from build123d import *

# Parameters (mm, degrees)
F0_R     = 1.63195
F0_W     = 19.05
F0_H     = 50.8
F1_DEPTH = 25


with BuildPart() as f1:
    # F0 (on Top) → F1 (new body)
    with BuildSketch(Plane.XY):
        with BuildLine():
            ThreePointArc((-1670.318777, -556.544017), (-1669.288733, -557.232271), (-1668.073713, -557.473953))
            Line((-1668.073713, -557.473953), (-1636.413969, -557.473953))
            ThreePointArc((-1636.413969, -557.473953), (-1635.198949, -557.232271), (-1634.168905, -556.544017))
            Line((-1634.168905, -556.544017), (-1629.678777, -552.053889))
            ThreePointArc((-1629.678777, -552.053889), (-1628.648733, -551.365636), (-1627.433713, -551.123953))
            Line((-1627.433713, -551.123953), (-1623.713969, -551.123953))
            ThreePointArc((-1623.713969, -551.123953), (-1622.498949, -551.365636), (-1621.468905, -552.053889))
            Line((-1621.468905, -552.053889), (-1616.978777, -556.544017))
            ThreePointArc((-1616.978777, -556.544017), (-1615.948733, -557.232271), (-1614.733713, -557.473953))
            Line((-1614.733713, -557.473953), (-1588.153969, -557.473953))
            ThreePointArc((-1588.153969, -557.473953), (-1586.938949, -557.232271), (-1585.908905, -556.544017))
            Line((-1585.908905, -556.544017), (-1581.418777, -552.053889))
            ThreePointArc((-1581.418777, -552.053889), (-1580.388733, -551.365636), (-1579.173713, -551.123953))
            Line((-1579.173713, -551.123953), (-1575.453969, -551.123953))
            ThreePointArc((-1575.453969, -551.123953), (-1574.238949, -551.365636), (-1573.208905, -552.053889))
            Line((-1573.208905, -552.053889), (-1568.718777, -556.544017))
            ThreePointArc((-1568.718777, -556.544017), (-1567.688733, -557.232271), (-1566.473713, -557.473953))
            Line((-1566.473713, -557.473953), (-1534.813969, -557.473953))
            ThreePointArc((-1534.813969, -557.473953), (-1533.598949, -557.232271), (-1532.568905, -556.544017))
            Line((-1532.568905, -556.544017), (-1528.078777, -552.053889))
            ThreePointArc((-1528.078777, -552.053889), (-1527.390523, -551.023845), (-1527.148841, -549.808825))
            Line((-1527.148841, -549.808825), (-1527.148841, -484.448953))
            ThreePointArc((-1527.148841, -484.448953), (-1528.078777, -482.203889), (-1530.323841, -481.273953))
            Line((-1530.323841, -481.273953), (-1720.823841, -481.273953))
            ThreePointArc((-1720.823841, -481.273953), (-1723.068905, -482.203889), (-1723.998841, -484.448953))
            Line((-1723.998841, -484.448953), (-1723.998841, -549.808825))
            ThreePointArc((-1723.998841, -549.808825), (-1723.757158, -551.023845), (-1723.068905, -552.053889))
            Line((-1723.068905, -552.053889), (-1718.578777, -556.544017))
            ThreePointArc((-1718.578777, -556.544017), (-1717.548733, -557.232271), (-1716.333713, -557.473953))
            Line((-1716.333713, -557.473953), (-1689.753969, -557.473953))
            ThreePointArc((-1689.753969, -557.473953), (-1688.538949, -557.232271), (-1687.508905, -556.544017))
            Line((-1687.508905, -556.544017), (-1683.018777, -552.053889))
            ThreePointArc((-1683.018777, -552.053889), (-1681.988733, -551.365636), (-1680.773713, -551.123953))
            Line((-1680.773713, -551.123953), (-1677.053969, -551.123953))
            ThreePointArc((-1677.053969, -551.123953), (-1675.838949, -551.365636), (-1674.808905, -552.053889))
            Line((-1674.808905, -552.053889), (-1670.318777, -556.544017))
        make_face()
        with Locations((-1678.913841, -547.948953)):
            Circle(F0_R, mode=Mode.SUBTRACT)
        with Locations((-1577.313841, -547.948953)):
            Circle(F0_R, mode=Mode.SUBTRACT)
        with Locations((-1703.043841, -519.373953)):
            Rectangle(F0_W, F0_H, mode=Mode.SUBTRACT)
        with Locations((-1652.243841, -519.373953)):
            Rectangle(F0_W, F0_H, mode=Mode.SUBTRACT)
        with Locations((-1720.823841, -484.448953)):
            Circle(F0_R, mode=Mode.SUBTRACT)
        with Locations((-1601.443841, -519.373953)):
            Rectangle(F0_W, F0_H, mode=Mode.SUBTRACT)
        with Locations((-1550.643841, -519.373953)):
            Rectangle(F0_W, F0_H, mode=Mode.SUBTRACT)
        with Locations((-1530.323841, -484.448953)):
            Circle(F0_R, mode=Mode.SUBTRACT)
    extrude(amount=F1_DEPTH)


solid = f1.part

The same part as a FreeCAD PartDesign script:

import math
import FreeCAD as App
import Part
import Sketcher
from FreeCAD import Vector
Q = App.Units.Quantity


def add_polygon(sketch, points):
    """Adds a closed chain of lines whose ends are joined by coincident constraints."""
    first, n = sketch.GeometryCount, len(points)
    for a, b in zip(points, points[1:] + points[:1]):
        sketch.addGeometry(Part.LineSegment(App.Vector(*a, 0), App.Vector(*b, 0)), False)
    for i in range(n):
        sketch.addConstraint(Sketcher.Constraint("Coincident", first + i, 2, first + (i + 1) % n, 1))

doc = App.newDocument("Part")
body = doc.addObject("PartDesign::Body", "Body")

# Sketch on XY plane
sketch1 = body.newObject("Sketcher::SketchObject", "Sketch")
sketch1.AttachmentSupport = (doc.getObject("XY_Plane"), [""])
sketch1.MapMode = "FlatFace"
sketch1.addGeometry(Part.ArcOfCircle(Part.Circle(Vector(-1668.073716, -554.298959, 0), Vector(0, 0, 1), 3.174994), math.radians(-135.000047), math.radians(-89.999955)), False)  # 0
sketch1.addGeometry(Part.LineSegment(Vector(-1668.073713, -557.473953, 0), Vector(-1636.413969, -557.473953, 0)), False)  # 1
sketch1.addGeometry(Part.ArcOfCircle(Part.Circle(Vector(-1636.413966, -554.298959, 0), Vector(0, 0, 1), 3.174994), math.radians(-90.000045), math.radians(-44.999953)), False)  # 2
sketch1.addGeometry(Part.LineSegment(Vector(-1634.168905, -556.544017, 0), Vector(-1629.678777, -552.053889, 0)), False)  # 3
sketch1.addGeometry(Part.ArcOfCircle(Part.Circle(Vector(-1627.433711, -554.298958, 0), Vector(0, 0, 1), 3.175005), math.radians(90.000039), math.radians(134.999963)), False)  # 4
sketch1.addGeometry(Part.LineSegment(Vector(-1627.433713, -551.123953, 0), Vector(-1623.713969, -551.123953, 0)), False)  # 5
sketch1.addGeometry(Part.ArcOfCircle(Part.Circle(Vector(-1623.713971, -554.298958, 0), Vector(0, 0, 1), 3.175005), math.radians(45.000037), math.radians(89.999961)), False)  # 6
sketch1.addGeometry(Part.LineSegment(Vector(-1621.468905, -552.053889, 0), Vector(-1616.978777, -556.544017, 0)), False)  # 7
sketch1.addGeometry(Part.ArcOfCircle(Part.Circle(Vector(-1614.733716, -554.298959, 0), Vector(0, 0, 1), 3.174994), math.radians(-135.000047), math.radians(-89.999955)), False)  # 8
sketch1.addGeometry(Part.LineSegment(Vector(-1614.733713, -557.473953, 0), Vector(-1588.153969, -557.473953, 0)), False)  # 9
sketch1.addGeometry(Part.ArcOfCircle(Part.Circle(Vector(-1588.153966, -554.298959, 0), Vector(0, 0, 1), 3.174994), math.radians(-90.000045), math.radians(-44.999953)), False)  # 10
sketch1.addGeometry(Part.LineSegment(Vector(-1585.908905, -556.544017, 0), Vector(-1581.418777, -552.053889, 0)), False)  # 11
sketch1.addGeometry(Part.ArcOfCircle(Part.Circle(Vector(-1579.173711, -554.298958, 0), Vector(0, 0, 1), 3.175005), math.radians(90.000039), math.radians(134.999963)), False)  # 12
sketch1.addGeometry(Part.LineSegment(Vector(-1579.173713, -551.123953, 0), Vector(-1575.453969, -551.123953, 0)), False)  # 13
sketch1.addGeometry(Part.ArcOfCircle(Part.Circle(Vector(-1575.453971, -554.298958, 0), Vector(0, 0, 1), 3.175005), math.radians(45.000037), math.radians(89.999961)), False)  # 14
sketch1.addGeometry(Part.LineSegment(Vector(-1573.208905, -552.053889, 0), Vector(-1568.718777, -556.544017, 0)), False)  # 15
sketch1.addGeometry(Part.ArcOfCircle(Part.Circle(Vector(-1566.473716, -554.298959, 0), Vector(0, 0, 1), 3.174994), math.radians(-135.000047), math.radians(-89.999955)), False)  # 16
sketch1.addGeometry(Part.LineSegment(Vector(-1566.473713, -557.473953, 0), Vector(-1534.813969, -557.473953, 0)), False)  # 17
sketch1.addGeometry(Part.ArcOfCircle(Part.Circle(Vector(-1534.813966, -554.298959, 0), Vector(0, 0, 1), 3.174994), math.radians(-90.000045), math.radians(-44.999953)), False)  # 18
sketch1.addGeometry(Part.LineSegment(Vector(-1532.568905, -556.544017, 0), Vector(-1528.078777, -552.053889, 0)), False)  # 19
sketch1.addGeometry(Part.ArcOfCircle(Part.Circle(Vector(-1530.323835, -549.808828, 0), Vector(0, 0, 1), 3.174994), math.radians(-45.000047), math.radians(0.000045)), False)  # 20
sketch1.addGeometry(Part.LineSegment(Vector(-1527.148841, -549.808825, 0), Vector(-1527.148841, -484.448953, 0)), False)  # 21
sketch1.addGeometry(Part.ArcOfCircle(Part.Circle(Vector(-1530.323841, -484.448953, 0), Vector(0, 0, 1), 3.175), math.radians(0.000002), math.radians(89.999998)), False)  # 22
sketch1.addGeometry(Part.LineSegment(Vector(-1530.323841, -481.273953, 0), Vector(-1720.823841, -481.273953, 0)), False)  # 23
sketch1.addGeometry(Part.ArcOfCircle(Part.Circle(Vector(-1720.823841, -484.448953, 0), Vector(0, 0, 1), 3.175), math.radians(90.000002), math.radians(179.999998)), False)  # 24
sketch1.addGeometry(Part.LineSegment(Vector(-1723.998841, -484.448953, 0), Vector(-1723.998841, -549.808825, 0)), False)  # 25
sketch1.addGeometry(Part.ArcOfCircle(Part.Circle(Vector(-1720.823836, -549.808823, 0), Vector(0, 0, 1), 3.175005), math.radians(-179.999961), math.radians(-135.000037)), False)  # 26
sketch1.addGeometry(Part.LineSegment(Vector(-1723.068905, -552.053889, 0), Vector(-1718.578777, -556.544017, 0)), False)  # 27
sketch1.addGeometry(Part.ArcOfCircle(Part.Circle(Vector(-1716.333716, -554.298959, 0), Vector(0, 0, 1), 3.174994), math.radians(-135.000047), math.radians(-89.999955)), False)  # 28
sketch1.addGeometry(Part.LineSegment(Vector(-1716.333713, -557.473953, 0), Vector(-1689.753969, -557.473953, 0)), False)  # 29
sketch1.addGeometry(Part.ArcOfCircle(Part.Circle(Vector(-1689.753966, -554.298959, 0), Vector(0, 0, 1), 3.174994), math.radians(-90.000045), math.radians(-44.999953)), False)  # 30
sketch1.addGeometry(Part.LineSegment(Vector(-1687.508905, -556.544017, 0), Vector(-1683.018777, -552.053889, 0)), False)  # 31
sketch1.addGeometry(Part.ArcOfCircle(Part.Circle(Vector(-1680.773711, -554.298958, 0), Vector(0, 0, 1), 3.175005), math.radians(90.000039), math.radians(134.999963)), False)  # 32
sketch1.addGeometry(Part.LineSegment(Vector(-1680.773713, -551.123953, 0), Vector(-1677.053969, -551.123953, 0)), False)  # 33
sketch1.addGeometry(Part.ArcOfCircle(Part.Circle(Vector(-1677.053971, -554.298958, 0), Vector(0, 0, 1), 3.175005), math.radians(45.000037), math.radians(89.999961)), False)  # 34
sketch1.addGeometry(Part.LineSegment(Vector(-1674.808905, -552.053889, 0), Vector(-1670.318777, -556.544017, 0)), False)  # 35
sketch1.addGeometry(Part.Circle(Vector(-1678.913841, -547.948953, 0), Vector(0, 0, 1), 1.63195), False)  # 36
add_polygon(sketch1, [(-1693.518841, -544.773953), (-1712.568841, -544.773953), (-1712.568841, -493.973953), (-1693.518841, -493.973953)])  # lines 37-40
add_polygon(sketch1, [(-1642.718841, -544.773953), (-1661.768841, -544.773953), (-1661.768841, -493.973953), (-1642.718841, -493.973953)])  # lines 41-44
sketch1.addGeometry(Part.Circle(Vector(-1577.313841, -547.948953, 0), Vector(0, 0, 1), 1.63195), False)  # 45
add_polygon(sketch1, [(-1591.918841, -544.773953), (-1610.968841, -544.773953), (-1610.968841, -493.973953), (-1591.918841, -493.973953)])  # lines 46-49
add_polygon(sketch1, [(-1541.118841, -544.773953), (-1560.168841, -544.773953), (-1560.168841, -493.973953), (-1541.118841, -493.973953)])  # lines 50-53
sketch1.addGeometry(Part.Circle(Vector(-1720.823841, -484.448953, 0), Vector(0, 0, 1), 1.63195), False)  # 54
sketch1.addGeometry(Part.Circle(Vector(-1530.323841, -484.448953, 0), Vector(0, 0, 1), 1.63195), False)  # 55
sketch1.addConstraint(Sketcher.Constraint("Tangent", 0, 2, 1, 1))
sketch1.addConstraint(Sketcher.Constraint("Tangent", 1, 2, 2, 1))
sketch1.addConstraint(Sketcher.Constraint("Tangent", 2, 2, 3, 1))
sketch1.addConstraint(Sketcher.Constraint("Tangent", 3, 2, 4, 2))
sketch1.addConstraint(Sketcher.Constraint("Tangent", 4, 1, 5, 1))
sketch1.addConstraint(Sketcher.Constraint("Tangent", 5, 2, 6, 2))
sketch1.addConstraint(Sketcher.Constraint("Tangent", 6, 1, 7, 1))
sketch1.addConstraint(Sketcher.Constraint("Tangent", 7, 2, 8, 1))
sketch1.addConstraint(Sketcher.Constraint("Tangent", 8, 2, 9, 1))
sketch1.addConstraint(Sketcher.Constraint("Tangent", 9, 2, 10, 1))
sketch1.addConstraint(Sketcher.Constraint("Tangent", 10, 2, 11, 1))
sketch1.addConstraint(Sketcher.Constraint("Tangent", 11, 2, 12, 2))
sketch1.addConstraint(Sketcher.Constraint("Tangent", 12, 1, 13, 1))
sketch1.addConstraint(Sketcher.Constraint("Tangent", 13, 2, 14, 2))
sketch1.addConstraint(Sketcher.Constraint("Tangent", 14, 1, 15, 1))
sketch1.addConstraint(Sketcher.Constraint("Tangent", 15, 2, 16, 1))
sketch1.addConstraint(Sketcher.Constraint("Tangent", 16, 2, 17, 1))
sketch1.addConstraint(Sketcher.Constraint("Tangent", 17, 2, 18, 1))
sketch1.addConstraint(Sketcher.Constraint("Tangent", 18, 2, 19, 1))
sketch1.addConstraint(Sketcher.Constraint("Tangent", 19, 2, 20, 1))
sketch1.addConstraint(Sketcher.Constraint("Tangent", 20, 2, 21, 1))
sketch1.addConstraint(Sketcher.Constraint("Tangent", 21, 2, 22, 1))
sketch1.addConstraint(Sketcher.Constraint("Tangent", 22, 2, 23, 1))
sketch1.addConstraint(Sketcher.Constraint("Tangent", 23, 2, 24, 1))
sketch1.addConstraint(Sketcher.Constraint("Tangent", 24, 2, 25, 1))
sketch1.addConstraint(Sketcher.Constraint("Tangent", 25, 2, 26, 1))
sketch1.addConstraint(Sketcher.Constraint("Tangent", 26, 2, 27, 1))
sketch1.addConstraint(Sketcher.Constraint("Tangent", 27, 2, 28, 1))
sketch1.addConstraint(Sketcher.Constraint("Tangent", 28, 2, 29, 1))
sketch1.addConstraint(Sketcher.Constraint("Tangent", 29, 2, 30, 1))
sketch1.addConstraint(Sketcher.Constraint("Tangent", 30, 2, 31, 1))
sketch1.addConstraint(Sketcher.Constraint("Tangent", 31, 2, 32, 2))
sketch1.addConstraint(Sketcher.Constraint("Tangent", 32, 1, 33, 1))
sketch1.addConstraint(Sketcher.Constraint("Tangent", 33, 2, 34, 2))
sketch1.addConstraint(Sketcher.Constraint("Tangent", 34, 1, 35, 1))
sketch1.addConstraint(Sketcher.Constraint("Tangent", 35, 2, 0, 1))
sketch1.addConstraint(Sketcher.Constraint("Horizontal", 1))
sketch1.addConstraint(Sketcher.Constraint("Horizontal", 5))
sketch1.addConstraint(Sketcher.Constraint("Horizontal", 9))
sketch1.addConstraint(Sketcher.Constraint("Horizontal", 13))
sketch1.addConstraint(Sketcher.Constraint("Horizontal", 17))
sketch1.addConstraint(Sketcher.Constraint("Vertical", 21))
sketch1.addConstraint(Sketcher.Constraint("Horizontal", 23))
sketch1.addConstraint(Sketcher.Constraint("Vertical", 25))
sketch1.addConstraint(Sketcher.Constraint("Horizontal", 29))
sketch1.addConstraint(Sketcher.Constraint("Horizontal", 33))
sketch1.addConstraint(Sketcher.Constraint("Horizontal", 37))
sketch1.addConstraint(Sketcher.Constraint("Vertical", 38))
sketch1.addConstraint(Sketcher.Constraint("Horizontal", 39))
sketch1.addConstraint(Sketcher.Constraint("Vertical", 40))
sketch1.addConstraint(Sketcher.Constraint("Horizontal", 41))
sketch1.addConstraint(Sketcher.Constraint("Vertical", 42))
sketch1.addConstraint(Sketcher.Constraint("Horizontal", 43))
sketch1.addConstraint(Sketcher.Constraint("Vertical", 44))
sketch1.addConstraint(Sketcher.Constraint("Horizontal", 46))
sketch1.addConstraint(Sketcher.Constraint("Vertical", 47))
sketch1.addConstraint(Sketcher.Constraint("Horizontal", 48))
sketch1.addConstraint(Sketcher.Constraint("Vertical", 49))
sketch1.addConstraint(Sketcher.Constraint("Horizontal", 50))
sketch1.addConstraint(Sketcher.Constraint("Vertical", 51))
sketch1.addConstraint(Sketcher.Constraint("Horizontal", 52))
sketch1.addConstraint(Sketcher.Constraint("Vertical", 53))
sketch1.addConstraint(Sketcher.Constraint("Coincident", 54, 3, 24, 3))
sketch1.addConstraint(Sketcher.Constraint("Coincident", 55, 3, 22, 3))
sketch1.addConstraint(Sketcher.Constraint("Equal", 0, 2))
sketch1.addConstraint(Sketcher.Constraint("Equal", 4, 6))
sketch1.addConstraint(Sketcher.Constraint("Equal", 2, 8))
sketch1.addConstraint(Sketcher.Constraint("Equal", 8, 10))
sketch1.addConstraint(Sketcher.Constraint("Equal", 6, 12))
sketch1.addConstraint(Sketcher.Constraint("Equal", 12, 14))
sketch1.addConstraint(Sketcher.Constraint("Equal", 10, 16))
sketch1.addConstraint(Sketcher.Constraint("Equal", 16, 18))
sketch1.addConstraint(Sketcher.Constraint("Equal", 18, 20))
sketch1.addConstraint(Sketcher.Constraint("Equal", 22, 24))
sketch1.addConstraint(Sketcher.Constraint("Equal", 14, 26))
sketch1.addConstraint(Sketcher.Constraint("Equal", 20, 28))
sketch1.addConstraint(Sketcher.Constraint("Equal", 28, 30))
sketch1.addConstraint(Sketcher.Constraint("Equal", 26, 32))
sketch1.addConstraint(Sketcher.Constraint("Equal", 32, 34))
sketch1.addConstraint(Sketcher.Constraint("Equal", 36, 45))
sketch1.addConstraint(Sketcher.Constraint("Equal", 45, 54))
sketch1.addConstraint(Sketcher.Constraint("Equal", 54, 55))
sketch1.addConstraint(Sketcher.Constraint("Perpendicular", 3, 7))
sketch1.addConstraint(Sketcher.Constraint("Perpendicular", 7, 11))
sketch1.addConstraint(Sketcher.Constraint("Perpendicular", 11, 15))
sketch1.addConstraint(Sketcher.Constraint("Perpendicular", 15, 19))
sketch1.addConstraint(Sketcher.Constraint("Perpendicular", 19, 27))
sketch1.addConstraint(Sketcher.Constraint("Perpendicular", 27, 31))
sketch1.addConstraint(Sketcher.Constraint("Perpendicular", 31, 35))
sketch1.addConstraint(Sketcher.Constraint("Horizontal", 2, 3, 4, 3))
sketch1.addConstraint(Sketcher.Constraint("Horizontal", 6, 3, 8, 3))
sketch1.addConstraint(Sketcher.Constraint("Horizontal", 10, 3, 12, 3))
sketch1.addConstraint(Sketcher.Constraint("Horizontal", 14, 3, 16, 3))
sketch1.addConstraint(Sketcher.Constraint("Horizontal", 18, 3, 28, 3))
sketch1.addConstraint(Sketcher.Constraint("Horizontal", 30, 3, 32, 3))
sketch1.addConstraint(Sketcher.Constraint("Horizontal", 36, 3, 45, 3))
sketch1.addConstraint(Sketcher.Constraint("Horizontal", 3, 2, 6, 1))
sketch1.addConstraint(Sketcher.Constraint("Horizontal", 14, 1, 19, 2))
sketch1.addConstraint(Sketcher.Constraint("Horizontal", 20, 2, 25, 2))
sketch1.addConstraint(Sketcher.Constraint("Horizontal", 19, 2, 26, 2))
sketch1.addConstraint(Sketcher.Constraint("Horizontal", 40, 2, 41, 2))
sketch1.addConstraint(Sketcher.Constraint("Horizontal", 39, 2, 42, 2))
sketch1.addConstraint(Sketcher.Constraint("Horizontal", 44, 2, 46, 2))
sketch1.addConstraint(Sketcher.Constraint("Horizontal", 43, 2, 47, 2))
sketch1.addConstraint(Sketcher.Constraint("Horizontal", 49, 2, 50, 2))
sketch1.addConstraint(Sketcher.Constraint("Horizontal", 48, 2, 51, 2))
sketch1.addConstraint(Sketcher.Constraint("Equal", 5, 13))
sketch1.addConstraint(Sketcher.Constraint("Equal", 1, 17))
sketch1.addConstraint(Sketcher.Constraint("Equal", 9, 29))
sketch1.addConstraint(Sketcher.Constraint("Equal", 13, 33))
sketch1.addConstraint(Sketcher.Constraint("Equal", 39, 41))
sketch1.addConstraint(Sketcher.Constraint("Equal", 43, 46))
sketch1.addConstraint(Sketcher.Constraint("Equal", 48, 50))
sketch1.addConstraint(Sketcher.Constraint("DistanceY", 38, 1, 38, 2, Q("2 in")))
sketch1.addConstraint(Sketcher.Constraint("DistanceX", 23, 2, 23, 1, Q("7.5 in")))
sketch1.addConstraint(Sketcher.Constraint("Radius", 4, Q("0.1250002 in")))
sketch1.addConstraint(Sketcher.Constraint("Radius", 22, Q("0.125 in")))
sketch1.addConstraint(Sketcher.Constraint("Diameter", 36, Q("0.1285 in")))
sketch1.addConstraint(Sketcher.Constraint("DistanceX", 37, 2, 37, 1, Q("0.75 in")))
sketch1.addConstraint(Sketcher.Constraint("DistanceY", 21, 1, 21, 2, 65.359872))
sketch1.addConstraint(Sketcher.Constraint("DistanceX", 1, 1, 1, 2, 31.659744))
sketch1.addConstraint(Sketcher.Constraint("DistanceX", 5, 1, 5, 2, 3.719744))
sketch1.addConstraint(Sketcher.Constraint("DistanceY", 0, 3, -1, 1, 554.298959))
sketch1.addConstraint(Sketcher.Constraint("DistanceX", 4, 3, -1, 1, 1627.433711))
sketch1.addConstraint(Sketcher.Constraint("DistanceX", 36, 3, -1, 1, 1678.913841))
sketch1.addConstraint(Sketcher.Constraint("DistanceX", 45, 3, -1, 1, 1577.313841))
sketch1.addConstraint(Sketcher.Constraint("DistanceX", 37, 2, -1, 1, 1712.568841))
sketch1.addConstraint(Sketcher.Constraint("DistanceX", 41, 2, -1, 1, 1661.768841))
sketch1.addConstraint(Sketcher.Constraint("DistanceX", 46, 2, -1, 1, 1610.968841))
sketch1.addConstraint(Sketcher.Constraint("DistanceX", 50, 2, -1, 1, 1560.168841))
sketch1.addConstraint(Sketcher.Constraint("DistanceY", 36, 3, -1, 1, 547.948953))
sketch1.addConstraint(Sketcher.Constraint("DistanceY", 37, 2, -1, 1, 544.773953))
pad1 = body.newObject("PartDesign::Pad", "Pad")
pad1.Profile = sketch1
pad1.Length = 25

doc.recompute()
